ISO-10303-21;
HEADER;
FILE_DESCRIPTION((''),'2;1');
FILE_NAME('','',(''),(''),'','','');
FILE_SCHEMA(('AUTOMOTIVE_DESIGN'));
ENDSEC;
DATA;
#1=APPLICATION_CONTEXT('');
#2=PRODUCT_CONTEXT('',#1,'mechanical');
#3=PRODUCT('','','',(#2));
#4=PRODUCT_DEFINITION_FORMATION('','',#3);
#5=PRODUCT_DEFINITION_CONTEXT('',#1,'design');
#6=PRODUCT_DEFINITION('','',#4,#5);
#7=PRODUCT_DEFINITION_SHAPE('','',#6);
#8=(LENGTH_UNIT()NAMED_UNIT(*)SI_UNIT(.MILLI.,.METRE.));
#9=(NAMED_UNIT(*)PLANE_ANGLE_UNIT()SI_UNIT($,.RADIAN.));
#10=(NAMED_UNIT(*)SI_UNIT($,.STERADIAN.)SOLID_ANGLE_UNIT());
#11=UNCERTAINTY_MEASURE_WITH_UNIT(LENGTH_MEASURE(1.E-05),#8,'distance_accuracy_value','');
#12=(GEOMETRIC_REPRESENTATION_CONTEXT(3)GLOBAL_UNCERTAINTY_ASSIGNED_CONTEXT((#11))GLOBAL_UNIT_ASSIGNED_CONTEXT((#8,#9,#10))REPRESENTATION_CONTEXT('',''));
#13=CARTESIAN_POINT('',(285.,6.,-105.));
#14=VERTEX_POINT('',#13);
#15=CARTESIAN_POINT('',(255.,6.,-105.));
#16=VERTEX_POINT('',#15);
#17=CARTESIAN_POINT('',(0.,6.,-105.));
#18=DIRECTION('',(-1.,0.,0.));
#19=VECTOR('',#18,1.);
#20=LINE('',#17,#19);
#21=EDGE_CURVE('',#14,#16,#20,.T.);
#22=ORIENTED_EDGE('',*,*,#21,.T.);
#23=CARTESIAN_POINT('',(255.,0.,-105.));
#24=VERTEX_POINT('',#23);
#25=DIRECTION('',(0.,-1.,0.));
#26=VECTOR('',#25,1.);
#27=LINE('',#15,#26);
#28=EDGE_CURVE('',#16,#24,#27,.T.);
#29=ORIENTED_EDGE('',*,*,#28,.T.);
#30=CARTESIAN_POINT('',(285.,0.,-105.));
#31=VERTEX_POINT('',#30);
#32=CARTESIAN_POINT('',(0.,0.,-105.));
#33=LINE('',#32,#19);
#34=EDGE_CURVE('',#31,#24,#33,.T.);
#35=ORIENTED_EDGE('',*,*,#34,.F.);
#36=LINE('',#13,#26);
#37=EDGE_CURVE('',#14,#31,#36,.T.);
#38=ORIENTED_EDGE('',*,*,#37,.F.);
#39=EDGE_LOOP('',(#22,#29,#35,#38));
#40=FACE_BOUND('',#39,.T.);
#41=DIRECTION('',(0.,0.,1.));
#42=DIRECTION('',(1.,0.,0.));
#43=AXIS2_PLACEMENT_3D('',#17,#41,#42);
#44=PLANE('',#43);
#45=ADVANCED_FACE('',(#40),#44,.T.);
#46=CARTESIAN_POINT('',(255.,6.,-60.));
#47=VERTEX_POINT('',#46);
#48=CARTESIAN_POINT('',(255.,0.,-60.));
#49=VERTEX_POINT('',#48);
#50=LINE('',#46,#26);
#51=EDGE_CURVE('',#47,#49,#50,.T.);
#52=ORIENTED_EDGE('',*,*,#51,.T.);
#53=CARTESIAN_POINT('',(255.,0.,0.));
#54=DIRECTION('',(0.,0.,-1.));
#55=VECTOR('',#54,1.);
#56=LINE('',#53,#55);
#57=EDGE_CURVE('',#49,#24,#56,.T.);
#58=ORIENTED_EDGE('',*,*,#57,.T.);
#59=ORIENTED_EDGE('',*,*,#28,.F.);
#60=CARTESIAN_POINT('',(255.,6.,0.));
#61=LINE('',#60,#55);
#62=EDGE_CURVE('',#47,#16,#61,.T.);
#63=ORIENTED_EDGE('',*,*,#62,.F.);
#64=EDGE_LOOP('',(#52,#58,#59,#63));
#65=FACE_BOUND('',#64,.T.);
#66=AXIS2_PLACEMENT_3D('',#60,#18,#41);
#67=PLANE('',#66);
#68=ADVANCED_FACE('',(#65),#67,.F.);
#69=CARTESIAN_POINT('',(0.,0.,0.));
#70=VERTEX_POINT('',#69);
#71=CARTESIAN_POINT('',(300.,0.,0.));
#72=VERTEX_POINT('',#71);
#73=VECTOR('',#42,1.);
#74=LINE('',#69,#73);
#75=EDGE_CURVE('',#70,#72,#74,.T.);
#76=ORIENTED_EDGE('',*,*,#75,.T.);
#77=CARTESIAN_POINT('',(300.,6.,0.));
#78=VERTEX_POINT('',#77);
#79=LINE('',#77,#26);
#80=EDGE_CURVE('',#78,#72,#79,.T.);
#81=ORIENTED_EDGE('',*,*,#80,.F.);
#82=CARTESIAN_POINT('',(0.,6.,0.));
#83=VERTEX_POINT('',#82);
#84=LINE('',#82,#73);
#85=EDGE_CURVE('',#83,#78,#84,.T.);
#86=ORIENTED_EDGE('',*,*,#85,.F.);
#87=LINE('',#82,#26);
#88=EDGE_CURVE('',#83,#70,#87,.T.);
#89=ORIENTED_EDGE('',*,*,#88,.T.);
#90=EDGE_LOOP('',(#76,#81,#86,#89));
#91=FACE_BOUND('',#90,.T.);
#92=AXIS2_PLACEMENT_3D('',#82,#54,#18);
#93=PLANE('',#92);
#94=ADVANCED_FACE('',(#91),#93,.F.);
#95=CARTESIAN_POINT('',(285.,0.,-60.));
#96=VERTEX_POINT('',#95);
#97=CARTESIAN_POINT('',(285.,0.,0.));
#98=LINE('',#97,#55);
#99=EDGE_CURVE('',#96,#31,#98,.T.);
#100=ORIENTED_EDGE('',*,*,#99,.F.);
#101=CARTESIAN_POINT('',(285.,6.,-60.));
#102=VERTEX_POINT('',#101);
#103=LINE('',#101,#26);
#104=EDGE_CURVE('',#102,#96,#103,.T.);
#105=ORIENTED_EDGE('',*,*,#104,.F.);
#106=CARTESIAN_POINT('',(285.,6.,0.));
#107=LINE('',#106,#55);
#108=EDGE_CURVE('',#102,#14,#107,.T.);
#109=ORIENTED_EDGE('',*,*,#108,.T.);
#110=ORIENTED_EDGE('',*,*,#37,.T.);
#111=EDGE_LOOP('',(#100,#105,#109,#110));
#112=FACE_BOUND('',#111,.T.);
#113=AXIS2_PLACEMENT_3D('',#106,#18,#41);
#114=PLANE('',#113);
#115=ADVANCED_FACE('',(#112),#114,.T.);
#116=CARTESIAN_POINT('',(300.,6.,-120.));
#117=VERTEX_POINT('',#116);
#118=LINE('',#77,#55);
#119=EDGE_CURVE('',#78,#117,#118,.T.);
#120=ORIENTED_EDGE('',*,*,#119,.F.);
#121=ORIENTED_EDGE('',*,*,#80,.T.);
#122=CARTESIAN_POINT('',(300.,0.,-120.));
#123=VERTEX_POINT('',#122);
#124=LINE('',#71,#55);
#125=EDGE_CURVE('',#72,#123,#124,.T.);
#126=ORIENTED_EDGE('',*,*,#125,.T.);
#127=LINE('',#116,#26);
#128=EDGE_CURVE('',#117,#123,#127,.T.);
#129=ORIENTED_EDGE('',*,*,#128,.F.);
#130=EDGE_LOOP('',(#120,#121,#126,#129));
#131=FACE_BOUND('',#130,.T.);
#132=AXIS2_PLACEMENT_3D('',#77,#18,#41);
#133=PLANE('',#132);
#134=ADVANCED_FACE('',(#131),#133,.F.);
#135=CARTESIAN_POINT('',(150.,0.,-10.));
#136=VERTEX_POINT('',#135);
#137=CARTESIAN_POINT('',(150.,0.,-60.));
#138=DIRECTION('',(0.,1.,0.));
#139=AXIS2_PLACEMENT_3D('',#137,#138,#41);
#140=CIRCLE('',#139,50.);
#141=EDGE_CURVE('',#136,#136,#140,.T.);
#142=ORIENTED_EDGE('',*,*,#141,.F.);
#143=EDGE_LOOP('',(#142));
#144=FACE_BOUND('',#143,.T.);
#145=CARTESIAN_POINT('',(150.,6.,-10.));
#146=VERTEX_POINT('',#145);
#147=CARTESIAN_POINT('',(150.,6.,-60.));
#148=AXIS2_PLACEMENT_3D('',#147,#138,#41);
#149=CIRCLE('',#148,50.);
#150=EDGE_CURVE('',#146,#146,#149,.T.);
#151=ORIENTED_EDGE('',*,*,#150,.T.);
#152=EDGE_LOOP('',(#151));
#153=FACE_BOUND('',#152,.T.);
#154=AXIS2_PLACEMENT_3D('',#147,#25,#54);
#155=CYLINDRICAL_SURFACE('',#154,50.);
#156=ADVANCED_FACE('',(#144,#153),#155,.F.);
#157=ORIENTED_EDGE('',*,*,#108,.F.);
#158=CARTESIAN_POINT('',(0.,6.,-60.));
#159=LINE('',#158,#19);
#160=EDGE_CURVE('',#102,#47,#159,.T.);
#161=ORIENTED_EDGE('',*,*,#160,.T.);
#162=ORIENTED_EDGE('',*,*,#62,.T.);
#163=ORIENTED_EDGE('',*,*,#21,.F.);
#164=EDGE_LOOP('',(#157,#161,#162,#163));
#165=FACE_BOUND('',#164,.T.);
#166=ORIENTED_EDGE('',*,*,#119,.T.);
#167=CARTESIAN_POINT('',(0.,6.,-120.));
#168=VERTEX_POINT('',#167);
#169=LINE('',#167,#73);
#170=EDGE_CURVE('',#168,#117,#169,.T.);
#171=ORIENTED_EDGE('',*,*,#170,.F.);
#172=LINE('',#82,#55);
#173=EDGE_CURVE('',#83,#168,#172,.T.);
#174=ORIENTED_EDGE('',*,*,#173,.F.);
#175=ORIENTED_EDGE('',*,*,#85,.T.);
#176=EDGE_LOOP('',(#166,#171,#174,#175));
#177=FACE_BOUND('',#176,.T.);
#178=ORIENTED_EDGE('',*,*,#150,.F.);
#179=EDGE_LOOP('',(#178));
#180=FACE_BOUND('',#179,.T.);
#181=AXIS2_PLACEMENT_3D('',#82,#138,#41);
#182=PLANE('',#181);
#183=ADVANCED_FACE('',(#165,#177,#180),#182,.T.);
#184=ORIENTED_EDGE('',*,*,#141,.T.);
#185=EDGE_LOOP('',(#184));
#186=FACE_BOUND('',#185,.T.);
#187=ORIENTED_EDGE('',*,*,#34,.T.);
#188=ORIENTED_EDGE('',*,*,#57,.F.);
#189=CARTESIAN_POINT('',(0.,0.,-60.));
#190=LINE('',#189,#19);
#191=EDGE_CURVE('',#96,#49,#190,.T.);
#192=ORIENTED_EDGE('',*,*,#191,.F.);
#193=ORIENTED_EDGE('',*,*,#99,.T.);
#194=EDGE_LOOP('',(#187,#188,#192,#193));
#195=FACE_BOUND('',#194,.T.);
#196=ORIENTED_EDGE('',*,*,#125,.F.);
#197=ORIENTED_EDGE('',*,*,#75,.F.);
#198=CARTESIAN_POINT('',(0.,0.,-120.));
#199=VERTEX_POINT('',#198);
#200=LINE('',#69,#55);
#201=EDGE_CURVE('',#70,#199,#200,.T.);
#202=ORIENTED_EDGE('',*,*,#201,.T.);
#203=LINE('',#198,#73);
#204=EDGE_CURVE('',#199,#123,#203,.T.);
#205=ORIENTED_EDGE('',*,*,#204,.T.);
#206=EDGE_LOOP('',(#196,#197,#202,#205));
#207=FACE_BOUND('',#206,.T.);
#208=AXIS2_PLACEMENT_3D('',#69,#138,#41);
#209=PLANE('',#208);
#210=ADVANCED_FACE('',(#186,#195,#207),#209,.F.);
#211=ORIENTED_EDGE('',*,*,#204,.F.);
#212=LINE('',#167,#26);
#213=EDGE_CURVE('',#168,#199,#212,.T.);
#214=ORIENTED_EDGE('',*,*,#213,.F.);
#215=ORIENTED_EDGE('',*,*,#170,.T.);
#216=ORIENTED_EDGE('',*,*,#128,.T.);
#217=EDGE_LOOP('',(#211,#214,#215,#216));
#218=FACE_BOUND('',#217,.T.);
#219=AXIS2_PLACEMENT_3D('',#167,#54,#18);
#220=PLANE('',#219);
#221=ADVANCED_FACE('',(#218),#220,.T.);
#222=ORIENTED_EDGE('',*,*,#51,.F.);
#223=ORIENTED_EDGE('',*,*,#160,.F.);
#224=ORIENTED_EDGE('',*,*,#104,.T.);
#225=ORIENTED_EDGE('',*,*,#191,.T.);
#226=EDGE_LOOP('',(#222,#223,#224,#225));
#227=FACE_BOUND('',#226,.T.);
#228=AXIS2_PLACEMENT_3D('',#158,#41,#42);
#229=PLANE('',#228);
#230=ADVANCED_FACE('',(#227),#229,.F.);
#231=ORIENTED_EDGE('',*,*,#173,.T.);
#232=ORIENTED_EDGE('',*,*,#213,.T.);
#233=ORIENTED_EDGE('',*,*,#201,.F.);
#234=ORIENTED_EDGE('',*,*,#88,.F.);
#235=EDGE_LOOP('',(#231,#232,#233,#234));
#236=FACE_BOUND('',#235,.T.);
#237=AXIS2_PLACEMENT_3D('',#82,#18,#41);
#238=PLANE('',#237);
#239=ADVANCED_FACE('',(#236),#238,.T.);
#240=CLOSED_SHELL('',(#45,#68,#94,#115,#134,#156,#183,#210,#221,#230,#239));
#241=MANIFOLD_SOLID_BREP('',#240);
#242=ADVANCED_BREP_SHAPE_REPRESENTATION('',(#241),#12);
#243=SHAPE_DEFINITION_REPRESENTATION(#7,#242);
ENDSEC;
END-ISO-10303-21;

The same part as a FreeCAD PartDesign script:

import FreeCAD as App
import Part
import Sketcher
from FreeCAD import Vector
Q = App.Units.Quantity


def add_polygon(sketch, points):
    """Adds a closed chain of lines whose ends are joined by coincident constraints."""
    first, n = sketch.GeometryCount, len(points)
    for a, b in zip(points, points[1:] + points[:1]):
        sketch.addGeometry(Part.LineSegment(App.Vector(*a, 0), App.Vector(*b, 0)), False)
    for i in range(n):
        sketch.addConstraint(Sketcher.Constraint("Coincident", first + i, 2, first + (i + 1) % n, 1))

doc = App.newDocument("Part")
body = doc.addObject("PartDesign::Body", "Body")

sketch1 = doc.addObject("Sketcher::SketchObject", "Sketch")
body.addObject(sketch1)
sketch1.AttachmentSupport = (doc.XZ_Plane, [""])
sketch1.MapMode = "FlatFace"
add_polygon(sketch1, [(0, -120), (0, 0), (300, 0), (300, -120)])
sketch1.addGeometry(Part.Circle(Vector(150, -60, 0), Vector(0, 0, 1), 50), False)
add_polygon(sketch1, [(285, -60), (255, -60), (255, -105), (285, -105)])
sketch1.addConstraint(Sketcher.Constraint("Vertical", 0))
sketch1.addConstraint(Sketcher.Constraint("Horizontal", 1))
sketch1.addConstraint(Sketcher.Constraint("Vertical", 2))
sketch1.addConstraint(Sketcher.Constraint("Horizontal", 3))
sketch1.addConstraint(Sketcher.Constraint("Horizontal", 5))
sketch1.addConstraint(Sketcher.Constraint("Vertical", 6))
sketch1.addConstraint(Sketcher.Constraint("Horizontal", 7))
sketch1.addConstraint(Sketcher.Constraint("Vertical", 8))
sketch1.addConstraint(Sketcher.Constraint("Coincident", 0, 2, -1, 1))
sketch1.addConstraint(Sketcher.Constraint("Horizontal", 4, 3, 5, 2))
sketch1.addConstraint(Sketcher.Constraint("Diameter", 4, Q("100 mm")))
sketch1.addConstraint(Sketcher.Constraint("DistanceX", 1, 1, 1, 2, Q("300 mm")))
sketch1.addConstraint(Sketcher.Constraint("DistanceX", 5, 2, 5, 1, Q("30 mm")))
sketch1.addConstraint(Sketcher.Constraint("DistanceY", 0, 1, 0, 2, Q("120 mm")))
sketch1.addConstraint(Sketcher.Constraint("DistanceY", 6, 2, 6, 1, Q("45 mm")))
sketch1.addConstraint(Sketcher.Constraint("DistanceX", -1, 1, 4, 3, Q("150 mm")))
sketch1.addConstraint(Sketcher.Constraint("DistanceY", 4, 3, -1, 1, Q("60 mm")))
sketch1.addConstraint(Sketcher.Constraint("DistanceX", -1, 1, 5, 2, Q("255 mm")))
pad1 = doc.addObject("PartDesign::Pad", "Pad")
body.addObject(pad1)
pad1.Profile = sketch1
pad1.Length = 6
pad1.Reversed = True

doc.recompute()
